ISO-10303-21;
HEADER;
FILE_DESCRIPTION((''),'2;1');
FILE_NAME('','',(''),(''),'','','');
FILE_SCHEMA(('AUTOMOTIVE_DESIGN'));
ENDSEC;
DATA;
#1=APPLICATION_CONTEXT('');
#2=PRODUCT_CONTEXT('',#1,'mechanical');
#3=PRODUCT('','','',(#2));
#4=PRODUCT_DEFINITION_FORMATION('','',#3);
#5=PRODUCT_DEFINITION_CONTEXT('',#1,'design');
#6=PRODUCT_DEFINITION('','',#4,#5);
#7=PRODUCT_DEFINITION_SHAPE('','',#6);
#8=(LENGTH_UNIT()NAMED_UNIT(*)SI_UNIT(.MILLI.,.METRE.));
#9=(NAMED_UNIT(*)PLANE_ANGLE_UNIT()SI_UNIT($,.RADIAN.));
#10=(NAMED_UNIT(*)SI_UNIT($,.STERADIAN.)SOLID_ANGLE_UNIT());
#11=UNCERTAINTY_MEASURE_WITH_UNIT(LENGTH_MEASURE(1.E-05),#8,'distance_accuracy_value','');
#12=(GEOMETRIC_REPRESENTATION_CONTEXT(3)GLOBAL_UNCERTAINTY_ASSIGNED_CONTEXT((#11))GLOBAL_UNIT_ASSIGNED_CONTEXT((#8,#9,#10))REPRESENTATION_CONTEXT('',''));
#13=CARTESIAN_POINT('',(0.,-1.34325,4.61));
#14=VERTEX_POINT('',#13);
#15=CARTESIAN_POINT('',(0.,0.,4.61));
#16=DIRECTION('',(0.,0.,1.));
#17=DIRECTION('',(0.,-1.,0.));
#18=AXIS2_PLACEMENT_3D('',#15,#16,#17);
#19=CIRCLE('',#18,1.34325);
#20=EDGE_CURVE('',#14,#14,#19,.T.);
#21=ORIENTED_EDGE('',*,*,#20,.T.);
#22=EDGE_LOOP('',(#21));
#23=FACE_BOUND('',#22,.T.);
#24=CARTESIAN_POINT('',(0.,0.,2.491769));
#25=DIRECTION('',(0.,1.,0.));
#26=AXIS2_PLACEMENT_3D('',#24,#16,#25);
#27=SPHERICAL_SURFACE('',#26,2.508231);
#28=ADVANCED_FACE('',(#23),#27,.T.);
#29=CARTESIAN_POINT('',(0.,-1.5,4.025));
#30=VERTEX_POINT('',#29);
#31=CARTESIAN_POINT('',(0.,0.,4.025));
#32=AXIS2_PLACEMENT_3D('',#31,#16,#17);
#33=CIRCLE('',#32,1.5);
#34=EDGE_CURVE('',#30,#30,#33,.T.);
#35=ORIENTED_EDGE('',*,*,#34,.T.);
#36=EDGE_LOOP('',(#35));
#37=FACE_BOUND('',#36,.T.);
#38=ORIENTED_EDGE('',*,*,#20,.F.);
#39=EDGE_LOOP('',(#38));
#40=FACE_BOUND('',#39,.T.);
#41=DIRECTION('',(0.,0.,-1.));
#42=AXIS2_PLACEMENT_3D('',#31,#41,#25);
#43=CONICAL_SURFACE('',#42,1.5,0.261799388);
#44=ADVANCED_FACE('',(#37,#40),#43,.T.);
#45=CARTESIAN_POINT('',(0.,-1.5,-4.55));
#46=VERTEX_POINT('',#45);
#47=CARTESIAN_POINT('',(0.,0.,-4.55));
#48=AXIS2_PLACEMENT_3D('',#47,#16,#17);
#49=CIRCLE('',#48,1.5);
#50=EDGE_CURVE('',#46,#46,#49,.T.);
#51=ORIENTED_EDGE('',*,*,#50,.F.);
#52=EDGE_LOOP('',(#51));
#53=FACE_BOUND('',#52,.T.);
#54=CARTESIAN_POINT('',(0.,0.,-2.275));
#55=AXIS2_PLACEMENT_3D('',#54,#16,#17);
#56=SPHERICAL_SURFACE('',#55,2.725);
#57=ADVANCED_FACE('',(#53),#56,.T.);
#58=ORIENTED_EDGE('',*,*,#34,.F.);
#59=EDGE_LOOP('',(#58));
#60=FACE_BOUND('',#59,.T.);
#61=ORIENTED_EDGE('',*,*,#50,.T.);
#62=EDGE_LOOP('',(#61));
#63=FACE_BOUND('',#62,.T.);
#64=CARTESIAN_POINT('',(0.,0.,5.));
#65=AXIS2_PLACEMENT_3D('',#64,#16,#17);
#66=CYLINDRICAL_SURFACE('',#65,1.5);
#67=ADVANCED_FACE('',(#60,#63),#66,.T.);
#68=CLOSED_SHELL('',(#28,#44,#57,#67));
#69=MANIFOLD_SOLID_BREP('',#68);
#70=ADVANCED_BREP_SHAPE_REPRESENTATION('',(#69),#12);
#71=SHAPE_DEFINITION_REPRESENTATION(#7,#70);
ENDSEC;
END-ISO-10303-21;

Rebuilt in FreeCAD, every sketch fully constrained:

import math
import FreeCAD as App
import Part
import Sketcher
from FreeCAD import Vector
Q = App.Units.Quantity

doc = App.newDocument("Part")
body = doc.addObject("PartDesign::Body", "Body")

sketch1 = doc.addObject("Sketcher::SketchObject", "Sketch")
body.addObject(sketch1)
sketch1.AttachmentSupport = (doc.YZ_Plane, [""])
sketch1.MapMode = "FlatFace"
sketch1.addGeometry(Part.LineSegment(Vector(0, 5, 0), Vector(0, -5, 0)), False)
sketch1.addGeometry(Part.ArcOfCircle(Part.Circle(Vector(0, -2.3, 0), Vector(0, 0, 1), 2.7), math.radians(-90), math.radians(-57)), False)
sketch1.addGeometry(Part.LineSegment(Vector(1.5, -4.5, 0), Vector(1.5, 4, 0)), False)
sketch1.addGeometry(Part.LineSegment(Vector(1.5, 4, 0), Vector(1.3, 4.6, 0)), False)
sketch1.addGeometry(Part.ArcOfCircle(Part.Circle(Vector(0, 2.5, 0), Vector(0, 0, 1), 2.5), math.radians(58), math.radians(90)), False)
sketch1.addConstraint(Sketcher.Constraint("Coincident", 0, 2, 1, 1))
sketch1.addConstraint(Sketcher.Constraint("Coincident", 1, 2, 2, 1))
sketch1.addConstraint(Sketcher.Constraint("Coincident", 2, 2, 3, 1))
sketch1.addConstraint(Sketcher.Constraint("Coincident", 3, 2, 4, 1))
sketch1.addConstraint(Sketcher.Constraint("Coincident", 4, 2, 0, 1))
sketch1.addConstraint(Sketcher.Constraint("Vertical", 0))
sketch1.addConstraint(Sketcher.Constraint("Vertical", 2))
sketch1.addConstraint(Sketcher.Constraint("Symmetric", 0, 2, 4, 2, -1, 1))
sketch1.addConstraint(Sketcher.Constraint("PointOnObject", 1, 3, -2))
sketch1.addConstraint(Sketcher.Constraint("PointOnObject", 4, 3, -2))
sketch1.addConstraint(Sketcher.Constraint("DistanceY", 0, 2, 0, 1, Q("10 mm")))
sketch1.addConstraint(Sketcher.Constraint("Angle", 3, Q("105 deg")))
sketch1.addConstraint(Sketcher.Constraint("Radius", 1, Q("2.725 mm")))
sketch1.addConstraint(Sketcher.Constraint("DistanceX", -1, 1, 1, 2, Q("1.5 mm")))
sketch1.addConstraint(Sketcher.Constraint("DistanceY", 1, 3, 2, 2, Q("6.3 mm")))
sketch1.addConstraint(Sketcher.Constraint("DistanceY", -1, 1, 3, 2, Q("4.61 mm")))
revolution = doc.addObject("PartDesign::Revolution", "Revolution")
body.addObject(revolution)
revolution.Profile = sketch1
revolution.ReferenceAxis = (sketch1, ["V_Axis"])
revolution.Angle = 360

doc.recompute()
